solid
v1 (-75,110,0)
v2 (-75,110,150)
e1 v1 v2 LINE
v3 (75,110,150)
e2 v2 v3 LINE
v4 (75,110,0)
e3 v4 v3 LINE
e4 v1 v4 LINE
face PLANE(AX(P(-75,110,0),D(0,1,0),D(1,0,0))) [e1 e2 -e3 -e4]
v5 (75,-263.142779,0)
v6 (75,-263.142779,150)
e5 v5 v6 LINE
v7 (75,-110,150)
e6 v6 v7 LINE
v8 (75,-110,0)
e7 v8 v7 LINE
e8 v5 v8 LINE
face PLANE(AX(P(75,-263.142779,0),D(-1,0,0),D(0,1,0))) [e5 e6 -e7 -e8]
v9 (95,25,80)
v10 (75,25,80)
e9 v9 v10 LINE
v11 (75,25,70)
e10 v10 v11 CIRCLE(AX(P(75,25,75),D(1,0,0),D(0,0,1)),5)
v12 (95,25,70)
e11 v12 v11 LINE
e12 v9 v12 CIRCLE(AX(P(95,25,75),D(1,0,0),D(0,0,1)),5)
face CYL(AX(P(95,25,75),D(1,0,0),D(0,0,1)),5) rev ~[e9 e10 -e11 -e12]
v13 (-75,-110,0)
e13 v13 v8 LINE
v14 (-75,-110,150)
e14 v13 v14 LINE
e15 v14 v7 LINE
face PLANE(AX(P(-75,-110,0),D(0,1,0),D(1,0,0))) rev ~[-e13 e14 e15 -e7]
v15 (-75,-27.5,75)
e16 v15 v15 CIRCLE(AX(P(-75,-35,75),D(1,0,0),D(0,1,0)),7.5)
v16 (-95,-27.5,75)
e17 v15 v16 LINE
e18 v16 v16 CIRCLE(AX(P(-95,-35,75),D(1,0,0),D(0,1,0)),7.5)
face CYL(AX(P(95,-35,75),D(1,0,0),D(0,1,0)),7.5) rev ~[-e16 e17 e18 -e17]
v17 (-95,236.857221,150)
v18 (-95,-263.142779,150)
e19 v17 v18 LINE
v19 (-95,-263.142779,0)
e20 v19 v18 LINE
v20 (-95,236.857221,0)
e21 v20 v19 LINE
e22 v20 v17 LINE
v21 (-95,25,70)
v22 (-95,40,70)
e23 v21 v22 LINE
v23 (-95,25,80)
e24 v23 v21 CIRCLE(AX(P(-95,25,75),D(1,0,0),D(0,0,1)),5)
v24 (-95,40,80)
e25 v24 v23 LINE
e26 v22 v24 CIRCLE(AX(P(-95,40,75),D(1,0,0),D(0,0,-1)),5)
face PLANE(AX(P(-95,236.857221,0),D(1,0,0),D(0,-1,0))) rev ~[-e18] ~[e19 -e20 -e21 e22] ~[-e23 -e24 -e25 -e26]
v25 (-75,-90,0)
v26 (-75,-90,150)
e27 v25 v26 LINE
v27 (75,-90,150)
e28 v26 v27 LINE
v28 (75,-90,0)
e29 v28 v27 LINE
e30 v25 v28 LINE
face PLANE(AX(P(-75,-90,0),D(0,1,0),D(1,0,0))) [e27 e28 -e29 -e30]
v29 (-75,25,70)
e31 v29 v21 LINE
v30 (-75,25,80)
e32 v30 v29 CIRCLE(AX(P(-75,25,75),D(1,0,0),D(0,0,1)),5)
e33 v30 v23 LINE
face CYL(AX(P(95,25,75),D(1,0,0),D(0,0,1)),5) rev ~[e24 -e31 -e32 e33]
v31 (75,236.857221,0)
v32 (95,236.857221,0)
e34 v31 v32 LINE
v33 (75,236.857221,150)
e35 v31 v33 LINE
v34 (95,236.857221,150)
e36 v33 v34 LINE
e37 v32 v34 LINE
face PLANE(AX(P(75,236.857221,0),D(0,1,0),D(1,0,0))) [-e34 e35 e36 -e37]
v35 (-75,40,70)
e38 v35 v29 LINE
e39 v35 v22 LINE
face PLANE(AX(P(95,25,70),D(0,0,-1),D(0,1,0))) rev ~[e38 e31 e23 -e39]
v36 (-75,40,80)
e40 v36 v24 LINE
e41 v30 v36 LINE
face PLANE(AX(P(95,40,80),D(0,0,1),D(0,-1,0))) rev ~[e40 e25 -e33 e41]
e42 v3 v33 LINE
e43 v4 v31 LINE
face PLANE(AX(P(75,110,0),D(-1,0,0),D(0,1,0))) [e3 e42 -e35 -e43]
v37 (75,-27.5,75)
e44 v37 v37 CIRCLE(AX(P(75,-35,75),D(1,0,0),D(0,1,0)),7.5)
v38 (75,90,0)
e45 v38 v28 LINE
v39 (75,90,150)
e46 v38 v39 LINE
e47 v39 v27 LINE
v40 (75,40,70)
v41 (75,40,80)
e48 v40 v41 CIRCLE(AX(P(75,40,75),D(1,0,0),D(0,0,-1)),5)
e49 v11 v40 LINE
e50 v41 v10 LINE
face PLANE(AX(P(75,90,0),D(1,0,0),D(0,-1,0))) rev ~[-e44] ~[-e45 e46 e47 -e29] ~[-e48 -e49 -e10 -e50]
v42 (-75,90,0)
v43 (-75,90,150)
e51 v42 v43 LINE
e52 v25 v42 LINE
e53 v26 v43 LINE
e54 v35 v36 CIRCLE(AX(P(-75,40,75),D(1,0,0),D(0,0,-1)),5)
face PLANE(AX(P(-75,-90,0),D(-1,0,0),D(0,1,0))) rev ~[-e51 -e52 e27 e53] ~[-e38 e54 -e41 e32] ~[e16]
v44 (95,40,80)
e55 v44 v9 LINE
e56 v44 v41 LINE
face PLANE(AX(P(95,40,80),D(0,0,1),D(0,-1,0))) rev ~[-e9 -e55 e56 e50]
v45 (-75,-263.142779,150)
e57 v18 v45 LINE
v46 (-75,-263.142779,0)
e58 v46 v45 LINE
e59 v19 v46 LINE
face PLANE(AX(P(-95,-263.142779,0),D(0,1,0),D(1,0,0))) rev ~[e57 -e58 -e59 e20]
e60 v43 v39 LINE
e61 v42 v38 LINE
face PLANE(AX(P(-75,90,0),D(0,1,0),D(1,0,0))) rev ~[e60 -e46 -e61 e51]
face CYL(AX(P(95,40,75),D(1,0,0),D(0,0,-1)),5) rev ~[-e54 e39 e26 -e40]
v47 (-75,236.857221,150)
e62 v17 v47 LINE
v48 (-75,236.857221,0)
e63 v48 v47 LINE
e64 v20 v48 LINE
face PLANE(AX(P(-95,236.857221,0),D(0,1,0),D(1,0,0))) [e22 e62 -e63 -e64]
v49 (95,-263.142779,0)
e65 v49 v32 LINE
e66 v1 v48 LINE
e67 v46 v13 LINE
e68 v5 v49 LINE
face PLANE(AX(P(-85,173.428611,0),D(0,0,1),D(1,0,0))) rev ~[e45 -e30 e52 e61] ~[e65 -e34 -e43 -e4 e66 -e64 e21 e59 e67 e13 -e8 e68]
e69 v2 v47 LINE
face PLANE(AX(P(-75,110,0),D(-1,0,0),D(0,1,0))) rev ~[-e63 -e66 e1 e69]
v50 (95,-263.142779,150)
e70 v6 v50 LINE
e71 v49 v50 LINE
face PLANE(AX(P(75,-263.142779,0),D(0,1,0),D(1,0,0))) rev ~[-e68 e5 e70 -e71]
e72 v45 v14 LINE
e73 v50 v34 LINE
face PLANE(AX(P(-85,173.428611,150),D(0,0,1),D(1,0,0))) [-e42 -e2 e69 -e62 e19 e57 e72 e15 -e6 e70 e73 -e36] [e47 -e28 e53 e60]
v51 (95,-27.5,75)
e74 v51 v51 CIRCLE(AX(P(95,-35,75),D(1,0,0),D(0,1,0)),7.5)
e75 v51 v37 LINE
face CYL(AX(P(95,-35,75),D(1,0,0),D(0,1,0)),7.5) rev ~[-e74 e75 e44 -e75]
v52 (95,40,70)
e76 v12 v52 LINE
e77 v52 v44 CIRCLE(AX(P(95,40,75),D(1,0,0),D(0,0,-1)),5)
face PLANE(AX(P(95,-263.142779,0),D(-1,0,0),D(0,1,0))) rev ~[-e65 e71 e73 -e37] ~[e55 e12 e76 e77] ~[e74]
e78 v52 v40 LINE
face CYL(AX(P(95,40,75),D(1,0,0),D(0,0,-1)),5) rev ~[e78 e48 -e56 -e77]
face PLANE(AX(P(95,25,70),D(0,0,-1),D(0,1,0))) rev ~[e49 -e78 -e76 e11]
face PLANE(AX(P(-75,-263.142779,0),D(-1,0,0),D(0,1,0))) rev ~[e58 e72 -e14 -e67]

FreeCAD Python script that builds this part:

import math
import FreeCAD as App
import Part
import Sketcher
from FreeCAD import Vector
Q = App.Units.Quantity


def add_polygon(sketch, points):
    """Adds a closed chain of lines whose ends are joined by coincident constraints."""
    first, n = sketch.GeometryCount, len(points)
    for a, b in zip(points, points[1:] + points[:1]):
        sketch.addGeometry(Part.LineSegment(App.Vector(*a, 0), App.Vector(*b, 0)), False)
    for i in range(n):
        sketch.addConstraint(Sketcher.Constraint("Coincident", first + i, 2, first + (i + 1) % n, 1))

doc = App.newDocument("Part")
body = doc.addObject("PartDesign::Body", "Body")

sketch1 = body.newObject("Sketcher::SketchObject", "Sketch")
sketch1.AttachmentSupport = (doc.getObject("XY_Plane"), [""])
sketch1.MapMode = "FlatFace"
add_polygon(sketch1, [(-75, 237), (-95, 237), (-95, -263), (-75, -263), (-75, -110), (75, -110), (75, -263), (95, -263), (95, 237), (75, 237), (75, 110), (-75, 110)])
add_polygon(sketch1, [(-75, 90), (75, 90), (75, -90), (-75, -90)])
sketch1.addConstraint(Sketcher.Constraint("Horizontal", 0))
sketch1.addConstraint(Sketcher.Constraint("Vertical", 1))
sketch1.addConstraint(Sketcher.Constraint("Horizontal", 2))
sketch1.addConstraint(Sketcher.Constraint("Vertical", 3))
sketch1.addConstraint(Sketcher.Constraint("Horizontal", 4))
sketch1.addConstraint(Sketcher.Constraint("Vertical", 5))
sketch1.addConstraint(Sketcher.Constraint("Horizontal", 6))
sketch1.addConstraint(Sketcher.Constraint("Vertical", 7))
sketch1.addConstraint(Sketcher.Constraint("Horizontal", 8))
sketch1.addConstraint(Sketcher.Constraint("Vertical", 9))
sketch1.addConstraint(Sketcher.Constraint("Horizontal", 10))
sketch1.addConstraint(Sketcher.Constraint("Vertical", 11))
sketch1.addConstraint(Sketcher.Constraint("Horizontal", 12))
sketch1.addConstraint(Sketcher.Constraint("Vertical", 13))
sketch1.addConstraint(Sketcher.Constraint("Horizontal", 14))
sketch1.addConstraint(Sketcher.Constraint("Vertical", 15))
sketch1.addConstraint(Sketcher.Constraint("Symmetric", 3, 2, 9, 2, -1, 1))
sketch1.addConstraint(Sketcher.Constraint("Symmetric", 12, 2, 14, 2, -1, 1))
sketch1.addConstraint(Sketcher.Constraint("Symmetric", 2, 2, 5, 2, -2))
sketch1.addConstraint(Sketcher.Constraint("Symmetric", 0, 2, 7, 2, -2))
sketch1.addConstraint(Sketcher.Constraint("Vertical", 3, 2, 10, 2))
sketch1.addConstraint(Sketcher.Constraint("Vertical", 9, 2, 12, 2))
sketch1.addConstraint(Sketcher.Constraint("DistanceX", 0, 2, 0, 1, Q("20 mm")))
sketch1.addConstraint(Sketcher.Constraint("DistanceX", 4, 1, 4, 2, Q("150 mm")))
sketch1.addConstraint(Sketcher.Constraint("DistanceY", 1, 2, 1, 1, Q("500 mm")))
sketch1.addConstraint(Sketcher.Constraint("DistanceY", 13, 2, 13, 1, Q("180 mm")))
sketch1.addConstraint(Sketcher.Constraint("DistanceY", 3, 2, -1, 1, Q("110 mm")))
sketch1.addConstraint(Sketcher.Constraint("DistanceY", 3, 1, 3, 2, Q("153.142779 mm")))
pad1 = body.newObject("PartDesign::Pad", "Pad")
pad1.Profile = sketch1
pad1.Length = 150

sketch2 = body.newObject("Sketcher::SketchObject", "Sketch001")
sketch2.AttachmentSupport = (doc.getObject("YZ_Plane"), [""])
sketch2.MapMode = "FlatFace"
sketch2.AttachmentOffset = App.Placement(Vector(0, 0, 95), App.Rotation())
sketch2.addGeometry(Part.Circle(Vector(-35, 75, 0), Vector(0, 0, 1), 8), False)
sketch2.addGeometry(Part.LineSegment(Vector(40, 80, 0), Vector(25, 80, 0)), False)
sketch2.addGeometry(Part.ArcOfCircle(Part.Circle(Vector(25, 75, 0), Vector(0, 0, 1), 5), math.radians(90), math.radians(270)), False)
sketch2.addGeometry(Part.LineSegment(Vector(25, 70, 0), Vector(40, 70, 0)), False)
sketch2.addGeometry(Part.ArcOfCircle(Part.Circle(Vector(40, 75, 0), Vector(0, 0, 1), 5), math.radians(-90), math.radians(90)), False)
sketch2.addConstraint(Sketcher.Constraint("Tangent", 1, 2, 2, 1))
sketch2.addConstraint(Sketcher.Constraint("Tangent", 2, 2, 3, 1))
sketch2.addConstraint(Sketcher.Constraint("Tangent", 3, 2, 4, 1))
sketch2.addConstraint(Sketcher.Constraint("Tangent", 4, 2, 1, 1))
sketch2.addConstraint(Sketcher.Constraint("Horizontal", 1))
sketch2.addConstraint(Sketcher.Constraint("Horizontal", 3))
sketch2.addConstraint(Sketcher.Constraint("Horizontal", 0, 3, 2, 3))
sketch2.addConstraint(Sketcher.Constraint("Diameter", 0, Q("15 mm")))
sketch2.addConstraint(Sketcher.Constraint("Radius", 2, Q("5 mm")))
sketch2.addConstraint(Sketcher.Constraint("DistanceX", 1, 2, 1, 1, Q("15 mm")))
sketch2.addConstraint(Sketcher.Constraint("DistanceX", 0, 3, -1, 1, Q("35 mm")))
sketch2.addConstraint(Sketcher.Constraint("DistanceY", -1, 1, 0, 3, Q("75 mm")))
sketch2.addConstraint(Sketcher.Constraint("DistanceX", -1, 1, 2, 3, Q("25 mm")))
pocket1 = body.newObject("PartDesign::Pocket", "Pocket")
pocket1.Profile = sketch2
pocket1.Length = 412

doc.recompute()
